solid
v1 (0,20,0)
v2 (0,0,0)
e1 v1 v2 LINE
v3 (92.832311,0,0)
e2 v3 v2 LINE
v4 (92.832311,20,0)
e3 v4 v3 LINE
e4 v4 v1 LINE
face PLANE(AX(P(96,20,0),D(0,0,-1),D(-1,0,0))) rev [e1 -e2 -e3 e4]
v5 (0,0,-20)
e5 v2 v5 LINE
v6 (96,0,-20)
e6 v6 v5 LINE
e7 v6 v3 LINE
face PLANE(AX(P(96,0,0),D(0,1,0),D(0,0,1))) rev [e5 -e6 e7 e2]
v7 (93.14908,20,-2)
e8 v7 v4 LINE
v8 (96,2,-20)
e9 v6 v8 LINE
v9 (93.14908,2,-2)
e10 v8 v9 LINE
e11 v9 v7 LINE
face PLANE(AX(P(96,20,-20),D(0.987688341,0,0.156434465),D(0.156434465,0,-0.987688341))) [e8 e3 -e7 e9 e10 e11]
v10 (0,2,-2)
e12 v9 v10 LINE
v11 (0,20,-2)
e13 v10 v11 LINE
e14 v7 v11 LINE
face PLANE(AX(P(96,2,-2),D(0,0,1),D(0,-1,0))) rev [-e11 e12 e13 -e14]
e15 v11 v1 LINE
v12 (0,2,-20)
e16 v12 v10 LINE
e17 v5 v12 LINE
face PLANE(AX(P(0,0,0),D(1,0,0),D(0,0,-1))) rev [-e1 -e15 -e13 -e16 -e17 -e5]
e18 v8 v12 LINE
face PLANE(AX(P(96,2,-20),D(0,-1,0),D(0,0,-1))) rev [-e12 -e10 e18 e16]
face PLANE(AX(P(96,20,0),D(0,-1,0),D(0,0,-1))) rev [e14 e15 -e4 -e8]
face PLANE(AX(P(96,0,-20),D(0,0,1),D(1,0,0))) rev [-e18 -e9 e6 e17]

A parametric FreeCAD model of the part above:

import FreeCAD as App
import Part
import Sketcher
Q = App.Units.Quantity

doc = App.newDocument("Part")
body = doc.addObject("PartDesign::Body", "Body")

sketch1 = body.newObject("Sketcher::SketchObject", "Sketch")
sketch1.AttachmentSupport = (doc.getObject("YZ_Plane"), [""])
sketch1.MapMode = "FlatFace"
sketch1.addGeometry(Part.LineSegment(App.Vector(20, 0, 0), App.Vector(0, 0, 0)), False)
sketch1.addGeometry(Part.LineSegment(App.Vector(0, 0, 0), App.Vector(0, -20, 0)), False)
sketch1.addGeometry(Part.LineSegment(App.Vector(0, -20, 0), App.Vector(2, -20, 0)), False)
sketch1.addGeometry(Part.LineSegment(App.Vector(2, -20, 0), App.Vector(2, -2, 0)), False)
sketch1.addGeometry(Part.LineSegment(App.Vector(2, -2, 0), App.Vector(20, -2, 0)), False)
sketch1.addGeometry(Part.LineSegment(App.Vector(20, -2, 0), App.Vector(20, 0, 0)), False)
sketch1.addConstraint(Sketcher.Constraint("Coincident", 0, 2, 1, 1))
sketch1.addConstraint(Sketcher.Constraint("Coincident", 1, 2, 2, 1))
sketch1.addConstraint(Sketcher.Constraint("Coincident", 2, 2, 3, 1))
sketch1.addConstraint(Sketcher.Constraint("Coincident", 3, 2, 4, 1))
sketch1.addConstraint(Sketcher.Constraint("Coincident", 4, 2, 5, 1))
sketch1.addConstraint(Sketcher.Constraint("Coincident", 5, 2, 0, 1))
sketch1.addConstraint(Sketcher.Constraint("Horizontal", 0))
sketch1.addConstraint(Sketcher.Constraint("Vertical", 1))
sketch1.addConstraint(Sketcher.Constraint("Horizontal", 2))
sketch1.addConstraint(Sketcher.Constraint("Vertical", 3))
sketch1.addConstraint(Sketcher.Constraint("Horizontal", 4))
sketch1.addConstraint(Sketcher.Constraint("Vertical", 5))
sketch1.addConstraint(Sketcher.Constraint("Coincident", 0, 2, -1, 1))
sketch1.addConstraint(Sketcher.Constraint("Equal", 0, 1))
sketch1.addConstraint(Sketcher.Constraint("Equal", 4, 3))
sketch1.addConstraint(Sketcher.Constraint("DistanceX", 0, 2, 0, 1, Q("20 mm")))
sketch1.addConstraint(Sketcher.Constraint("DistanceX", 2, 1, 2, 2, Q("2 mm")))
pad1 = body.newObject("PartDesign::Pad", "Pad")
pad1.Profile = sketch1
pad1.Length = 96

sketch2 = body.newObject("Sketcher::SketchObject", "Sketch001")
sketch2.AttachmentSupport = (doc.getObject("XZ_Plane"), [""])
sketch2.MapMode = "FlatFace"
sketch2.addGeometry(Part.LineSegment(App.Vector(96, -20, 0), App.Vector(92.8, 0, 0)), False)
sketch2.addGeometry(Part.LineSegment(App.Vector(92.8, 0, 0), App.Vector(96, 0, 0)), False)
sketch2.addGeometry(Part.LineSegment(App.Vector(96, 0, 0), App.Vector(96, -20, 0)), False)
sketch2.addConstraint(Sketcher.Constraint("Coincident", 0, 2, 1, 1))
sketch2.addConstraint(Sketcher.Constraint("Coincident", 1, 2, 2, 1))
sketch2.addConstraint(Sketcher.Constraint("Coincident", 2, 2, 0, 1))
sketch2.addConstraint(Sketcher.Constraint("Horizontal", 1))
sketch2.addConstraint(Sketcher.Constraint("Vertical", 2))
sketch2.addConstraint(Sketcher.Constraint("PointOnObject", 0, 2, -1))
sketch2.addConstraint(Sketcher.Constraint("DistanceY", 2, 2, 2, 1, Q("20 mm")))
sketch2.addConstraint(Sketcher.Constraint("Angle", 0, Q("99 deg")))
sketch2.addConstraint(Sketcher.Constraint("DistanceX", -1, 1, 1, 2, Q("96 mm")))
pocket1 = body.newObject("PartDesign::Pocket", "Pocket")
pocket1.Profile = sketch2
pocket1.Type = "ThroughAll"

doc.recompute()
